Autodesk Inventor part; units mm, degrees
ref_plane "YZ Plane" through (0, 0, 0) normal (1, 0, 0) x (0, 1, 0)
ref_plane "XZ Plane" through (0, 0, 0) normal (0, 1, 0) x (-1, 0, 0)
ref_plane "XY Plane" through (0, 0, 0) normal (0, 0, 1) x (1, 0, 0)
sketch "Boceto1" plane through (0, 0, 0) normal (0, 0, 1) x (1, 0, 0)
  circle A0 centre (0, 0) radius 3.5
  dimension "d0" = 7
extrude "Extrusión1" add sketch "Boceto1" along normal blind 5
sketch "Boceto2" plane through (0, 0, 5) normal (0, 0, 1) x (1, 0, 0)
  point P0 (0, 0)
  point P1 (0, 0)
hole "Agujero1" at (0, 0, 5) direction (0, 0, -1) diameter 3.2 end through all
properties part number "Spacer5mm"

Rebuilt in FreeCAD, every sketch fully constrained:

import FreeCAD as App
import Part
import Sketcher
from FreeCAD import Vector

doc = App.newDocument("Part")
body = doc.addObject("PartDesign::Body", "Body")

# Sketch on XY plane
sketch1 = body.newObject("Sketcher::SketchObject", "Sketch")
sketch1.AttachmentSupport = (doc.getObject("XY_Plane"), [""])
sketch1.MapMode = "FlatFace"
sketch1.addGeometry(Part.Circle(Vector(0, 0, 0), Vector(0, 0, 1), 3.5), False)
sketch1.addConstraint([
    Sketcher.Constraint("Coincident", 0, 3, -1, 1),
    Sketcher.Constraint("Diameter", 0, 7.0),
])
pad1 = body.newObject("PartDesign::Pad", "Pad")
pad1.Profile = sketch1
pad1.Length = 5

# Sketch on XY plane
sketch2 = body.newObject("Sketcher::SketchObject", "Sketch001")
sketch2.AttachmentSupport = (doc.getObject("XY_Plane"), [""])
sketch2.MapMode = "FlatFace"
sketch2.AttachmentOffset = App.Placement(Vector(0, 0, 5), App.Rotation())
sketch2.addGeometry(Part.Circle(Vector(0, 0, 0), Vector(0, 0, 1), 1.6), False)
sketch2.addConstraint([
    Sketcher.Constraint("Coincident", 0, 3, -1, 1),
    Sketcher.Constraint("Diameter", 0, 3.2),
])
doc.recompute()
hole = body.newObject("PartDesign::Hole", "Hole")
hole.Profile = sketch2
hole.ThreadType = "None"
hole.Diameter = 3.2
hole.DepthType = "ThroughAll"

doc.recompute()
